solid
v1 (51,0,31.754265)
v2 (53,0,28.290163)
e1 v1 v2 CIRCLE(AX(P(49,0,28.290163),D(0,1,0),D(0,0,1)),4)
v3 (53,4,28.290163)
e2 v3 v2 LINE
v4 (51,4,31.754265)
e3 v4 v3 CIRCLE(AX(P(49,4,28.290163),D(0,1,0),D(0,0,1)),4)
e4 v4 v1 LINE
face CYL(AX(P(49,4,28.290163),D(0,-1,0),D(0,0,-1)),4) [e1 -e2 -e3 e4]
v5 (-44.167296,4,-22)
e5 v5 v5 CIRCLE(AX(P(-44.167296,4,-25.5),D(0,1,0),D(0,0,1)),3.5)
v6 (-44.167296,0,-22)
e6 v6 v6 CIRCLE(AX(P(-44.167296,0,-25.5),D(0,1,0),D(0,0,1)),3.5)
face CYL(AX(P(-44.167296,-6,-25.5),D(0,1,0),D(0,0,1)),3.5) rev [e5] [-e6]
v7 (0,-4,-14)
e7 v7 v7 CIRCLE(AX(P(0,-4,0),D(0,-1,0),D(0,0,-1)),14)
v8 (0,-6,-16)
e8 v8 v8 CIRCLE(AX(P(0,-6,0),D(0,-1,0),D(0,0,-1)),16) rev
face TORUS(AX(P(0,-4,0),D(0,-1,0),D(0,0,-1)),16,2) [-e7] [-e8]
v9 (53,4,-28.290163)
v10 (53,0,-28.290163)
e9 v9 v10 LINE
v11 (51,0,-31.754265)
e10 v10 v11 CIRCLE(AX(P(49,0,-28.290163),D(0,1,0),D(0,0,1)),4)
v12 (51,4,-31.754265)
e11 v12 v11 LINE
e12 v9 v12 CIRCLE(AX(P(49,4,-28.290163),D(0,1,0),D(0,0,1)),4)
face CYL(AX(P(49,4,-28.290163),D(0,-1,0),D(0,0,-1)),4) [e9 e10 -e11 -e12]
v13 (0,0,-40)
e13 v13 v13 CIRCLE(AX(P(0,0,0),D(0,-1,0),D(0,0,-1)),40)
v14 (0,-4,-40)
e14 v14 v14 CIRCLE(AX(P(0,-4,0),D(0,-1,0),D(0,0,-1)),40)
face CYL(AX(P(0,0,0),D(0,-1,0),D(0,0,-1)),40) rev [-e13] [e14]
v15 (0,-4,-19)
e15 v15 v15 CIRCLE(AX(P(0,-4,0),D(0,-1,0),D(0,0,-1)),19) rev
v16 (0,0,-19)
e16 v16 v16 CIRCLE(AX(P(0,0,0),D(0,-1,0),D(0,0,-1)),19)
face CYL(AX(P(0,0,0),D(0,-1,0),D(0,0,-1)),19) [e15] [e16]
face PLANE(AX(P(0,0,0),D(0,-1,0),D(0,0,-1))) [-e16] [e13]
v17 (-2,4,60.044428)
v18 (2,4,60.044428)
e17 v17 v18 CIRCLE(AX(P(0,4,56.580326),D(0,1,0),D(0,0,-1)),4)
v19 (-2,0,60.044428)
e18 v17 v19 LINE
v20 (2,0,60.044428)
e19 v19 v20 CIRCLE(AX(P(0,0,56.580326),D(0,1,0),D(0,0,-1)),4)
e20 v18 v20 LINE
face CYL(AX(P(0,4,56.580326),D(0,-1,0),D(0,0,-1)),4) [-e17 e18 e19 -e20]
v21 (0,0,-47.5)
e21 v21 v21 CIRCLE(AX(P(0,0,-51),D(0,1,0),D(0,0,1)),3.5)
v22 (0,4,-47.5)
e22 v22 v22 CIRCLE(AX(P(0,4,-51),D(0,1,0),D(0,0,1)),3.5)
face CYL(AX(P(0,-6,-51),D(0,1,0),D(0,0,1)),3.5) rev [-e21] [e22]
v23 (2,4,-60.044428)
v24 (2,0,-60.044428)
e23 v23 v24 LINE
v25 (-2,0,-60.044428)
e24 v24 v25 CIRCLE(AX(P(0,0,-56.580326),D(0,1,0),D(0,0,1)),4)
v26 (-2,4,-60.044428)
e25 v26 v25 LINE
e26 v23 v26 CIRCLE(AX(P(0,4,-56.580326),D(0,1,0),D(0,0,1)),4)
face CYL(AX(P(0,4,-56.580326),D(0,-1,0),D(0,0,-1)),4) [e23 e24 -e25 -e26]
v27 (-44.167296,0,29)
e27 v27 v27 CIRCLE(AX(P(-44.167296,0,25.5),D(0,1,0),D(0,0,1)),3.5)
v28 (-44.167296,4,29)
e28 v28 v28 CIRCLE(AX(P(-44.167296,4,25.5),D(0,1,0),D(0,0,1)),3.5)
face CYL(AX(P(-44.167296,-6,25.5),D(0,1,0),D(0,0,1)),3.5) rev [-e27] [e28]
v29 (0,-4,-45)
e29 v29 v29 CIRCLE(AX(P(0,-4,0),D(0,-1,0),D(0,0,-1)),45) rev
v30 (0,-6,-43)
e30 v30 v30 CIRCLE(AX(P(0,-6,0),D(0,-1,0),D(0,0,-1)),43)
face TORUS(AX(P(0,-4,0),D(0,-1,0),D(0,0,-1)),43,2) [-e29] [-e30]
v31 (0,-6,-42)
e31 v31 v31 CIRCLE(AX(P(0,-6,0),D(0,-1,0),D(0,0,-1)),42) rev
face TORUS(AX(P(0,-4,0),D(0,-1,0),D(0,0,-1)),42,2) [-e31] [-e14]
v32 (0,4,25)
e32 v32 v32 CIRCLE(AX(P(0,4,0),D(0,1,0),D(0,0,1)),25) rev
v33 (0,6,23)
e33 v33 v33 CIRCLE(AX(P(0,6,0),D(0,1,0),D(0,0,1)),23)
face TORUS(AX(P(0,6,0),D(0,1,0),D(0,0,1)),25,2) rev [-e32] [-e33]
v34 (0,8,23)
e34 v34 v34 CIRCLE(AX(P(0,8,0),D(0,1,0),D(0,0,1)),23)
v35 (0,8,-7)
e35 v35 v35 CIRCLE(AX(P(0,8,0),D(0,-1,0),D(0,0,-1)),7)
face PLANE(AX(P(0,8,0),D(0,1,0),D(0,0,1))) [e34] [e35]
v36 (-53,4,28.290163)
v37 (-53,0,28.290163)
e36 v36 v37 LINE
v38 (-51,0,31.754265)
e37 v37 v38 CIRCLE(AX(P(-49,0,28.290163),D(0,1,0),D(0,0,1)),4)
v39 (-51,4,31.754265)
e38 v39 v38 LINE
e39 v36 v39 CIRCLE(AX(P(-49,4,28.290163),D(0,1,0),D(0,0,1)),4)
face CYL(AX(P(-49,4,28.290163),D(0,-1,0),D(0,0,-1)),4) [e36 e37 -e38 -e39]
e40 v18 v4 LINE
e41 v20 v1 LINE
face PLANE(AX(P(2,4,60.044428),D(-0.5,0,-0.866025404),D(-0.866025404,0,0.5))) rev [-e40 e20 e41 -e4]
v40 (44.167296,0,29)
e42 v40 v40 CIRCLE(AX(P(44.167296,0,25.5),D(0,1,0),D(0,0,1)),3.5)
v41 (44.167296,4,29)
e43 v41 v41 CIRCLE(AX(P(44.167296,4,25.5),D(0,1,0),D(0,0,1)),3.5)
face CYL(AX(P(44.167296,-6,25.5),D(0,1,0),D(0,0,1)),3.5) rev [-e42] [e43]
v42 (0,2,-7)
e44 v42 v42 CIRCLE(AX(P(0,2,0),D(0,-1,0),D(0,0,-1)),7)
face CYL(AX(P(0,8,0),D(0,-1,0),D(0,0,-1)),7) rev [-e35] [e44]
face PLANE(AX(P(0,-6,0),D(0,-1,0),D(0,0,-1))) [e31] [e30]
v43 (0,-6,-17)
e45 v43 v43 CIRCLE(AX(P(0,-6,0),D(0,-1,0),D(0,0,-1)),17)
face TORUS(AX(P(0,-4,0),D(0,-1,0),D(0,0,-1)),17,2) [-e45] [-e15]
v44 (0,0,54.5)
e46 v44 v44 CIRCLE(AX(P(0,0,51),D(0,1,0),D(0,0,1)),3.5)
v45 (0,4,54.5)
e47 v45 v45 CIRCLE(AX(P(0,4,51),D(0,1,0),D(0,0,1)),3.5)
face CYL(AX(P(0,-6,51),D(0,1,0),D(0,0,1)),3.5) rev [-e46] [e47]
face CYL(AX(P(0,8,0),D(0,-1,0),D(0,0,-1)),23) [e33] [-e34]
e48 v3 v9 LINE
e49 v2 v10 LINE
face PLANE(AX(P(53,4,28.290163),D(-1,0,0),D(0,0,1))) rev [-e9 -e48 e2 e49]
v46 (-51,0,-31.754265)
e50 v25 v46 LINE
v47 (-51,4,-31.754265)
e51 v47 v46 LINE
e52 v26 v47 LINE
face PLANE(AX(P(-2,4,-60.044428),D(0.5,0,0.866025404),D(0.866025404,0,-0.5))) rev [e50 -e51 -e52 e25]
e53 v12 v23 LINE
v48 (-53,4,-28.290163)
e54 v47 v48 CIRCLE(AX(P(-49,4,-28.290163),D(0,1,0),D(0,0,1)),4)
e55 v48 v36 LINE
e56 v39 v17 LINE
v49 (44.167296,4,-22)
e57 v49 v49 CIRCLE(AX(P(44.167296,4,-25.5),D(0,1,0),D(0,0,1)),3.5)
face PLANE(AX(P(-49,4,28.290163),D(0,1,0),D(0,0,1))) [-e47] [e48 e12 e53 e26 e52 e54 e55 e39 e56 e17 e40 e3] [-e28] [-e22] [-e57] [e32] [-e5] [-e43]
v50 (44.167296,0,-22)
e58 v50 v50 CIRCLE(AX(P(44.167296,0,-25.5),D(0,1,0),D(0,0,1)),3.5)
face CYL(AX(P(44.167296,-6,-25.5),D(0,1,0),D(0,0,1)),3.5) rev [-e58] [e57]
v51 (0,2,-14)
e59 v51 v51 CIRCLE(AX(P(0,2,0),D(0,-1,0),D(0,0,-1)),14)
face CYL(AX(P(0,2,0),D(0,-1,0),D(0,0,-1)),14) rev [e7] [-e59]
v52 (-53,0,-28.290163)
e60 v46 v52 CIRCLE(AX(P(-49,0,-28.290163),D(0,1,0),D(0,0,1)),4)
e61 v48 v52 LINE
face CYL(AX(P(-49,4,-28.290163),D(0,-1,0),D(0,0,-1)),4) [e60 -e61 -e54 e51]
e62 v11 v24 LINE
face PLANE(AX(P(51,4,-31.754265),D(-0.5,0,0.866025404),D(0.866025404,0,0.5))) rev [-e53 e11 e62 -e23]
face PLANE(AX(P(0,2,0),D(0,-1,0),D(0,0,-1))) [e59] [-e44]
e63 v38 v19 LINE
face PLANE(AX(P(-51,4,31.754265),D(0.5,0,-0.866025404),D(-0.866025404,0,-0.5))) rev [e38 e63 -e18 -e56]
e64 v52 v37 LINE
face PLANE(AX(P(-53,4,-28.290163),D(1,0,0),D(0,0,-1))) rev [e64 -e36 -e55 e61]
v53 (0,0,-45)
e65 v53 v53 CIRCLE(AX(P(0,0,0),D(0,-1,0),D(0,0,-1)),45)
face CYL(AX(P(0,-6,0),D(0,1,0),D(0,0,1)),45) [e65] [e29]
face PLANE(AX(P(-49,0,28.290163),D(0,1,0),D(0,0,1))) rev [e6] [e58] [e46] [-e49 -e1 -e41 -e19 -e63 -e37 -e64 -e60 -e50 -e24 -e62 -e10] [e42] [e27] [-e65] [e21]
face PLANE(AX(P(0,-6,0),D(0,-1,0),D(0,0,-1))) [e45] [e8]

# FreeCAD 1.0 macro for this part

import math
import FreeCAD as App
import Part
import Sketcher
Q = App.Units.Quantity


def edges_at(feature, points):
    """Names of the edges that pass closest to the given points."""
    edges = feature.Shape.Edges
    near = lambda p: min(range(len(edges)), key=lambda i: edges[i].distToShape(Part.Vertex(*p))[0])
    return sorted({f"Edge{near(p) + 1}" for p in points})

doc = App.newDocument("Part")
body = doc.addObject("PartDesign::Body", "Body")

# Sketch on XZ plane
sketch1 = doc.addObject("Sketcher::SketchObject", "Sketch")
body.addObject(sketch1)
sketch1.AttachmentSupport = (doc.XZ_Plane, [""])
sketch1.MapMode = "FlatFace"
sketch1.addGeometry(Part.LineSegment(App.Vector(2, 60, 0), App.Vector(51, 31.8, 0)), False)
sketch1.addGeometry(Part.ArcOfCircle(Part.Circle(App.Vector(49, 28.3, 0), App.Vector(0, 0, 1), 4), math.radians(0), math.radians(60)), False)
sketch1.addGeometry(Part.LineSegment(App.Vector(53, 28.3, 0), App.Vector(53, -28.3, 0)), False)
sketch1.addGeometry(Part.ArcOfCircle(Part.Circle(App.Vector(49, -28.3, 0), App.Vector(0, 0, 1), 4), math.radians(-60), math.radians(0)), False)
sketch1.addGeometry(Part.LineSegment(App.Vector(51, -31.8, 0), App.Vector(2, -60, 0)), False)
sketch1.addGeometry(Part.ArcOfCircle(Part.Circle(App.Vector(0, -56.6, 0), App.Vector(0, 0, 1), 4), math.radians(-120), math.radians(-60)), False)
sketch1.addGeometry(Part.LineSegment(App.Vector(-2, -60, 0), App.Vector(-51, -31.8, 0)), False)
sketch1.addGeometry(Part.ArcOfCircle(Part.Circle(App.Vector(-49, -28.3, 0), App.Vector(0, 0, 1), 4), math.radians(180), math.radians(240)), False)
sketch1.addGeometry(Part.LineSegment(App.Vector(-53, -28.3, 0), App.Vector(-53, 28.3, 0)), False)
sketch1.addGeometry(Part.ArcOfCircle(Part.Circle(App.Vector(-49, 28.3, 0), App.Vector(0, 0, 1), 4), math.radians(120), math.radians(180)), False)
sketch1.addGeometry(Part.LineSegment(App.Vector(-51, 31.8, 0), App.Vector(-2, 60, 0)), False)
sketch1.addGeometry(Part.ArcOfCircle(Part.Circle(App.Vector(0, 56.6, 0), App.Vector(0, 0, 1), 4), math.radians(60), math.radians(120)), False)
sketch1.addConstraint(Sketcher.Constraint("Tangent", 0, 2, 1, 2))
sketch1.addConstraint(Sketcher.Constraint("Tangent", 1, 1, 2, 1))
sketch1.addConstraint(Sketcher.Constraint("Tangent", 2, 2, 3, 2))
sketch1.addConstraint(Sketcher.Constraint("Tangent", 3, 1, 4, 1))
sketch1.addConstraint(Sketcher.Constraint("Tangent", 4, 2, 5, 2))
sketch1.addConstraint(Sketcher.Constraint("Tangent", 5, 1, 6, 1))
sketch1.addConstraint(Sketcher.Constraint("Tangent", 6, 2, 7, 2))
sketch1.addConstraint(Sketcher.Constraint("Tangent", 7, 1, 8, 1))
sketch1.addConstraint(Sketcher.Constraint("Tangent", 8, 2, 9, 2))
sketch1.addConstraint(Sketcher.Constraint("Tangent", 9, 1, 10, 1))
sketch1.addConstraint(Sketcher.Constraint("Tangent", 10, 2, 11, 2))
sketch1.addConstraint(Sketcher.Constraint("Tangent", 11, 1, 0, 1))
sketch1.addConstraint(Sketcher.Constraint("Vertical", 2))
sketch1.addConstraint(Sketcher.Constraint("Vertical", 8))
sketch1.addConstraint(Sketcher.Constraint("Equal", 1, 3))
sketch1.addConstraint(Sketcher.Constraint("Equal", 3, 5))
sketch1.addConstraint(Sketcher.Constraint("Equal", 5, 7))
sketch1.addConstraint(Sketcher.Constraint("Equal", 7, 9))
sketch1.addConstraint(Sketcher.Constraint("Equal", 9, 11))
sketch1.addConstraint(Sketcher.Constraint("Symmetric", 1, 3, 7, 3, -1, 1))
sketch1.addConstraint(Sketcher.Constraint("Symmetric", 5, 3, 11, 3, -1, 1))
sketch1.addConstraint(Sketcher.Constraint("Symmetric", 4, 2, 5, 1, -2))
sketch1.addConstraint(Sketcher.Constraint("Parallel", 4, 10))
sketch1.addConstraint(Sketcher.Constraint("Radius", 1, Q("4 mm")))
sketch1.addConstraint(Sketcher.Constraint("Angle", 0, Q("-30 deg")))
sketch1.addConstraint(Sketcher.Constraint("DistanceX", -1, 1, 1, 3, Q("49 mm")))
sketch1.addConstraint(Sketcher.Constraint("DistanceY", 2, 2, 2, 1, Q("56.580326 mm")))
pad1 = doc.addObject("PartDesign::Pad", "Pad")
body.addObject(pad1)
pad1.Profile = sketch1
pad1.Length = 4
pad1.Reversed = True

# Sketch on XZ plane
sketch2 = doc.addObject("Sketcher::SketchObject", "Sketch001")
body.addObject(sketch2)
sketch2.AttachmentSupport = (doc.XZ_Plane, [""])
sketch2.MapMode = "FlatFace"
sketch2.AttachmentOffset = App.Placement(App.Vector(0, 0, -4), App.Rotation())
sketch2.addGeometry(Part.Circle(App.Vector(0, 0, 0), App.Vector(0, 0, 1), 23), False)
sketch2.addConstraint(Sketcher.Constraint("Coincident", 0, 3, -1, 1))
sketch2.addConstraint(Sketcher.Constraint("Diameter", 0, Q("46 mm")))
pad2 = doc.addObject("PartDesign::Pad", "Pad001")
body.addObject(pad2)
pad2.Profile = sketch2
pad2.Length = 4
pad2.Reversed = True

# Sketch on XZ plane
sketch3 = doc.addObject("Sketcher::SketchObject", "Sketch002")
body.addObject(sketch3)
sketch3.AttachmentSupport = (doc.XZ_Plane, [""])
sketch3.MapMode = "FlatFace"
sketch3.addGeometry(Part.Circle(App.Vector(0, 0, 0), App.Vector(0, 0, 1), 45), False)
sketch3.addConstraint(Sketcher.Constraint("Coincident", 0, 3, -1, 1))
sketch3.addConstraint(Sketcher.Constraint("Diameter", 0, Q("90 mm")))
pad3 = doc.addObject("PartDesign::Pad", "Pad002")
body.addObject(pad3)
pad3.Profile = sketch3
pad3.Length = 6

# Sketch on XZ plane
sketch4 = doc.addObject("Sketcher::SketchObject", "Sketch003")
body.addObject(sketch4)
sketch4.AttachmentSupport = (doc.XZ_Plane, [""])
sketch4.MapMode = "FlatFace"
sketch4.AttachmentOffset = App.Placement(App.Vector(0, 0, 6), App.Rotation())
sketch4.addGeometry(Part.Circle(App.Vector(0, 0, 0), App.Vector(0, 0, 1), 40), False)
sketch4.addGeometry(Part.Circle(App.Vector(0, 0, 0), App.Vector(0, 0, 1), 19), False)
sketch4.addConstraint(Sketcher.Constraint("Coincident", 0, 3, -1, 1))
sketch4.addConstraint(Sketcher.Constraint("Coincident", 1, 3, -1, 1))
sketch4.addConstraint(Sketcher.Constraint("Diameter", 0, Q("80 mm")))
sketch4.addConstraint(Sketcher.Constraint("Diameter", 1, Q("38 mm")))
pocket1 = doc.addObject("PartDesign::Pocket", "Pocket")
body.addObject(pocket1)
pocket1.Profile = sketch4
pocket1.Length = 6

# Sketch on XZ plane
sketch5 = doc.addObject("Sketcher::SketchObject", "Sketch004")
body.addObject(sketch5)
sketch5.AttachmentSupport = (doc.XZ_Plane, [""])
sketch5.MapMode = "FlatFace"
sketch5.AttachmentOffset = App.Placement(App.Vector(0, 0, 6), App.Rotation())
sketch5.addGeometry(Part.Circle(App.Vector(0, 0, 0), App.Vector(0, 0, 1), 14), False)
sketch5.addConstraint(Sketcher.Constraint("Coincident", 0, 3, -1, 1))
sketch5.addConstraint(Sketcher.Constraint("Diameter", 0, Q("28 mm")))
pocket2 = doc.addObject("PartDesign::Pocket", "Pocket001")
body.addObject(pocket2)
pocket2.Profile = sketch5
pocket2.Length = 8

# Sketch on XZ plane
sketch6 = doc.addObject("Sketcher::SketchObject", "Sketch005")
body.addObject(sketch6)
sketch6.AttachmentSupport = (doc.XZ_Plane, [""])
sketch6.MapMode = "FlatFace"
sketch6.AttachmentOffset = App.Placement(App.Vector(0, 0, -2), App.Rotation())
sketch6.addGeometry(Part.Circle(App.Vector(0, 0, 0), App.Vector(0, 0, 1), 7), False)
sketch6.addConstraint(Sketcher.Constraint("Coincident", 0, 3, -1, 1))
sketch6.addConstraint(Sketcher.Constraint("Diameter", 0, Q("14 mm")))
pocket3 = doc.addObject("PartDesign::Pocket", "Pocket002")
body.addObject(pocket3)
pocket3.Profile = sketch6
pocket3.Type = "ThroughAll"
doc.recompute()

fillet = doc.addObject("PartDesign::Fillet", "Fillet")
body.addObject(fillet)
fillet.Base = (pocket3, edges_at(pocket3, [
    (0, 4, -23),
    (0, -6, 45),
    (0, -6, 40),
    (0, -6, 19),
    (0, -6, 14),
]))
fillet.Radius = 2

# Sketch on XZ plane
sketch7 = doc.addObject("Sketcher::SketchObject", "Sketch006")
body.addObject(sketch7)
sketch7.AttachmentSupport = (doc.XZ_Plane, [""])
sketch7.MapMode = "FlatFace"
sketch7.AttachmentOffset = App.Placement(App.Vector(0, 0, -4), App.Rotation())
sketch7.addGeometry(Part.Circle(App.Vector(0, -51, 0), App.Vector(0, 0, 1), 3.5), False)
sketch7.addGeometry(Part.Circle(App.Vector(44.2, -25.5, 0), App.Vector(0, 0, 1), 3.5), False)
sketch7.addGeometry(Part.Circle(App.Vector(44.2, 25.5, 0), App.Vector(0, 0, 1), 3.5), False)
sketch7.addGeometry(Part.Circle(App.Vector(0, 51, 0), App.Vector(0, 0, 1), 3.5), False)
sketch7.addGeometry(Part.Circle(App.Vector(-44.2, 25.5, 0), App.Vector(0, 0, 1), 3.5), False)
sketch7.addGeometry(Part.Circle(App.Vector(-44.2, -25.5, 0), App.Vector(0, 0, 1), 3.5), False)
sketch7.addConstraint(Sketcher.Constraint("Equal", 0, 1))
sketch7.addConstraint(Sketcher.Constraint("Equal", 1, 2))
sketch7.addConstraint(Sketcher.Constraint("Equal", 2, 3))
sketch7.addConstraint(Sketcher.Constraint("Equal", 3, 4))
sketch7.addConstraint(Sketcher.Constraint("Equal", 4, 5))
sketch7.addConstraint(Sketcher.Constraint("Symmetric", 0, 3, 3, 3, -1, 1))
sketch7.addConstraint(Sketcher.Constraint("Symmetric", 1, 3, 4, 3, -1, 1))
sketch7.addConstraint(Sketcher.Constraint("Symmetric", 2, 3, 5, 3, -1, 1))
sketch7.addConstraint(Sketcher.Constraint("Symmetric", 2, 3, 4, 3, -2))
sketch7.addConstraint(Sketcher.Constraint("PointOnObject", 0, 3, -2))
sketch7.addConstraint(Sketcher.Constraint("Diameter", 0, Q("7 mm")))
sketch7.addConstraint(Sketcher.Constraint("DistanceY", 0, 3, -1, 1, Q("51 mm")))
sketch7.addConstraint(Sketcher.Constraint("DistanceY", 1, 3, 2, 3, Q("51 mm")))
sketch7.addConstraint(Sketcher.Constraint("DistanceX", 4, 3, 2, 3, Q("88.334591 mm")))
pocket4 = doc.addObject("PartDesign::Pocket", "Pocket003")
body.addObject(pocket4)
pocket4.Profile = sketch7
pocket4.Type = "ThroughAll"
pocket4.Reversed = True

doc.recompute()
